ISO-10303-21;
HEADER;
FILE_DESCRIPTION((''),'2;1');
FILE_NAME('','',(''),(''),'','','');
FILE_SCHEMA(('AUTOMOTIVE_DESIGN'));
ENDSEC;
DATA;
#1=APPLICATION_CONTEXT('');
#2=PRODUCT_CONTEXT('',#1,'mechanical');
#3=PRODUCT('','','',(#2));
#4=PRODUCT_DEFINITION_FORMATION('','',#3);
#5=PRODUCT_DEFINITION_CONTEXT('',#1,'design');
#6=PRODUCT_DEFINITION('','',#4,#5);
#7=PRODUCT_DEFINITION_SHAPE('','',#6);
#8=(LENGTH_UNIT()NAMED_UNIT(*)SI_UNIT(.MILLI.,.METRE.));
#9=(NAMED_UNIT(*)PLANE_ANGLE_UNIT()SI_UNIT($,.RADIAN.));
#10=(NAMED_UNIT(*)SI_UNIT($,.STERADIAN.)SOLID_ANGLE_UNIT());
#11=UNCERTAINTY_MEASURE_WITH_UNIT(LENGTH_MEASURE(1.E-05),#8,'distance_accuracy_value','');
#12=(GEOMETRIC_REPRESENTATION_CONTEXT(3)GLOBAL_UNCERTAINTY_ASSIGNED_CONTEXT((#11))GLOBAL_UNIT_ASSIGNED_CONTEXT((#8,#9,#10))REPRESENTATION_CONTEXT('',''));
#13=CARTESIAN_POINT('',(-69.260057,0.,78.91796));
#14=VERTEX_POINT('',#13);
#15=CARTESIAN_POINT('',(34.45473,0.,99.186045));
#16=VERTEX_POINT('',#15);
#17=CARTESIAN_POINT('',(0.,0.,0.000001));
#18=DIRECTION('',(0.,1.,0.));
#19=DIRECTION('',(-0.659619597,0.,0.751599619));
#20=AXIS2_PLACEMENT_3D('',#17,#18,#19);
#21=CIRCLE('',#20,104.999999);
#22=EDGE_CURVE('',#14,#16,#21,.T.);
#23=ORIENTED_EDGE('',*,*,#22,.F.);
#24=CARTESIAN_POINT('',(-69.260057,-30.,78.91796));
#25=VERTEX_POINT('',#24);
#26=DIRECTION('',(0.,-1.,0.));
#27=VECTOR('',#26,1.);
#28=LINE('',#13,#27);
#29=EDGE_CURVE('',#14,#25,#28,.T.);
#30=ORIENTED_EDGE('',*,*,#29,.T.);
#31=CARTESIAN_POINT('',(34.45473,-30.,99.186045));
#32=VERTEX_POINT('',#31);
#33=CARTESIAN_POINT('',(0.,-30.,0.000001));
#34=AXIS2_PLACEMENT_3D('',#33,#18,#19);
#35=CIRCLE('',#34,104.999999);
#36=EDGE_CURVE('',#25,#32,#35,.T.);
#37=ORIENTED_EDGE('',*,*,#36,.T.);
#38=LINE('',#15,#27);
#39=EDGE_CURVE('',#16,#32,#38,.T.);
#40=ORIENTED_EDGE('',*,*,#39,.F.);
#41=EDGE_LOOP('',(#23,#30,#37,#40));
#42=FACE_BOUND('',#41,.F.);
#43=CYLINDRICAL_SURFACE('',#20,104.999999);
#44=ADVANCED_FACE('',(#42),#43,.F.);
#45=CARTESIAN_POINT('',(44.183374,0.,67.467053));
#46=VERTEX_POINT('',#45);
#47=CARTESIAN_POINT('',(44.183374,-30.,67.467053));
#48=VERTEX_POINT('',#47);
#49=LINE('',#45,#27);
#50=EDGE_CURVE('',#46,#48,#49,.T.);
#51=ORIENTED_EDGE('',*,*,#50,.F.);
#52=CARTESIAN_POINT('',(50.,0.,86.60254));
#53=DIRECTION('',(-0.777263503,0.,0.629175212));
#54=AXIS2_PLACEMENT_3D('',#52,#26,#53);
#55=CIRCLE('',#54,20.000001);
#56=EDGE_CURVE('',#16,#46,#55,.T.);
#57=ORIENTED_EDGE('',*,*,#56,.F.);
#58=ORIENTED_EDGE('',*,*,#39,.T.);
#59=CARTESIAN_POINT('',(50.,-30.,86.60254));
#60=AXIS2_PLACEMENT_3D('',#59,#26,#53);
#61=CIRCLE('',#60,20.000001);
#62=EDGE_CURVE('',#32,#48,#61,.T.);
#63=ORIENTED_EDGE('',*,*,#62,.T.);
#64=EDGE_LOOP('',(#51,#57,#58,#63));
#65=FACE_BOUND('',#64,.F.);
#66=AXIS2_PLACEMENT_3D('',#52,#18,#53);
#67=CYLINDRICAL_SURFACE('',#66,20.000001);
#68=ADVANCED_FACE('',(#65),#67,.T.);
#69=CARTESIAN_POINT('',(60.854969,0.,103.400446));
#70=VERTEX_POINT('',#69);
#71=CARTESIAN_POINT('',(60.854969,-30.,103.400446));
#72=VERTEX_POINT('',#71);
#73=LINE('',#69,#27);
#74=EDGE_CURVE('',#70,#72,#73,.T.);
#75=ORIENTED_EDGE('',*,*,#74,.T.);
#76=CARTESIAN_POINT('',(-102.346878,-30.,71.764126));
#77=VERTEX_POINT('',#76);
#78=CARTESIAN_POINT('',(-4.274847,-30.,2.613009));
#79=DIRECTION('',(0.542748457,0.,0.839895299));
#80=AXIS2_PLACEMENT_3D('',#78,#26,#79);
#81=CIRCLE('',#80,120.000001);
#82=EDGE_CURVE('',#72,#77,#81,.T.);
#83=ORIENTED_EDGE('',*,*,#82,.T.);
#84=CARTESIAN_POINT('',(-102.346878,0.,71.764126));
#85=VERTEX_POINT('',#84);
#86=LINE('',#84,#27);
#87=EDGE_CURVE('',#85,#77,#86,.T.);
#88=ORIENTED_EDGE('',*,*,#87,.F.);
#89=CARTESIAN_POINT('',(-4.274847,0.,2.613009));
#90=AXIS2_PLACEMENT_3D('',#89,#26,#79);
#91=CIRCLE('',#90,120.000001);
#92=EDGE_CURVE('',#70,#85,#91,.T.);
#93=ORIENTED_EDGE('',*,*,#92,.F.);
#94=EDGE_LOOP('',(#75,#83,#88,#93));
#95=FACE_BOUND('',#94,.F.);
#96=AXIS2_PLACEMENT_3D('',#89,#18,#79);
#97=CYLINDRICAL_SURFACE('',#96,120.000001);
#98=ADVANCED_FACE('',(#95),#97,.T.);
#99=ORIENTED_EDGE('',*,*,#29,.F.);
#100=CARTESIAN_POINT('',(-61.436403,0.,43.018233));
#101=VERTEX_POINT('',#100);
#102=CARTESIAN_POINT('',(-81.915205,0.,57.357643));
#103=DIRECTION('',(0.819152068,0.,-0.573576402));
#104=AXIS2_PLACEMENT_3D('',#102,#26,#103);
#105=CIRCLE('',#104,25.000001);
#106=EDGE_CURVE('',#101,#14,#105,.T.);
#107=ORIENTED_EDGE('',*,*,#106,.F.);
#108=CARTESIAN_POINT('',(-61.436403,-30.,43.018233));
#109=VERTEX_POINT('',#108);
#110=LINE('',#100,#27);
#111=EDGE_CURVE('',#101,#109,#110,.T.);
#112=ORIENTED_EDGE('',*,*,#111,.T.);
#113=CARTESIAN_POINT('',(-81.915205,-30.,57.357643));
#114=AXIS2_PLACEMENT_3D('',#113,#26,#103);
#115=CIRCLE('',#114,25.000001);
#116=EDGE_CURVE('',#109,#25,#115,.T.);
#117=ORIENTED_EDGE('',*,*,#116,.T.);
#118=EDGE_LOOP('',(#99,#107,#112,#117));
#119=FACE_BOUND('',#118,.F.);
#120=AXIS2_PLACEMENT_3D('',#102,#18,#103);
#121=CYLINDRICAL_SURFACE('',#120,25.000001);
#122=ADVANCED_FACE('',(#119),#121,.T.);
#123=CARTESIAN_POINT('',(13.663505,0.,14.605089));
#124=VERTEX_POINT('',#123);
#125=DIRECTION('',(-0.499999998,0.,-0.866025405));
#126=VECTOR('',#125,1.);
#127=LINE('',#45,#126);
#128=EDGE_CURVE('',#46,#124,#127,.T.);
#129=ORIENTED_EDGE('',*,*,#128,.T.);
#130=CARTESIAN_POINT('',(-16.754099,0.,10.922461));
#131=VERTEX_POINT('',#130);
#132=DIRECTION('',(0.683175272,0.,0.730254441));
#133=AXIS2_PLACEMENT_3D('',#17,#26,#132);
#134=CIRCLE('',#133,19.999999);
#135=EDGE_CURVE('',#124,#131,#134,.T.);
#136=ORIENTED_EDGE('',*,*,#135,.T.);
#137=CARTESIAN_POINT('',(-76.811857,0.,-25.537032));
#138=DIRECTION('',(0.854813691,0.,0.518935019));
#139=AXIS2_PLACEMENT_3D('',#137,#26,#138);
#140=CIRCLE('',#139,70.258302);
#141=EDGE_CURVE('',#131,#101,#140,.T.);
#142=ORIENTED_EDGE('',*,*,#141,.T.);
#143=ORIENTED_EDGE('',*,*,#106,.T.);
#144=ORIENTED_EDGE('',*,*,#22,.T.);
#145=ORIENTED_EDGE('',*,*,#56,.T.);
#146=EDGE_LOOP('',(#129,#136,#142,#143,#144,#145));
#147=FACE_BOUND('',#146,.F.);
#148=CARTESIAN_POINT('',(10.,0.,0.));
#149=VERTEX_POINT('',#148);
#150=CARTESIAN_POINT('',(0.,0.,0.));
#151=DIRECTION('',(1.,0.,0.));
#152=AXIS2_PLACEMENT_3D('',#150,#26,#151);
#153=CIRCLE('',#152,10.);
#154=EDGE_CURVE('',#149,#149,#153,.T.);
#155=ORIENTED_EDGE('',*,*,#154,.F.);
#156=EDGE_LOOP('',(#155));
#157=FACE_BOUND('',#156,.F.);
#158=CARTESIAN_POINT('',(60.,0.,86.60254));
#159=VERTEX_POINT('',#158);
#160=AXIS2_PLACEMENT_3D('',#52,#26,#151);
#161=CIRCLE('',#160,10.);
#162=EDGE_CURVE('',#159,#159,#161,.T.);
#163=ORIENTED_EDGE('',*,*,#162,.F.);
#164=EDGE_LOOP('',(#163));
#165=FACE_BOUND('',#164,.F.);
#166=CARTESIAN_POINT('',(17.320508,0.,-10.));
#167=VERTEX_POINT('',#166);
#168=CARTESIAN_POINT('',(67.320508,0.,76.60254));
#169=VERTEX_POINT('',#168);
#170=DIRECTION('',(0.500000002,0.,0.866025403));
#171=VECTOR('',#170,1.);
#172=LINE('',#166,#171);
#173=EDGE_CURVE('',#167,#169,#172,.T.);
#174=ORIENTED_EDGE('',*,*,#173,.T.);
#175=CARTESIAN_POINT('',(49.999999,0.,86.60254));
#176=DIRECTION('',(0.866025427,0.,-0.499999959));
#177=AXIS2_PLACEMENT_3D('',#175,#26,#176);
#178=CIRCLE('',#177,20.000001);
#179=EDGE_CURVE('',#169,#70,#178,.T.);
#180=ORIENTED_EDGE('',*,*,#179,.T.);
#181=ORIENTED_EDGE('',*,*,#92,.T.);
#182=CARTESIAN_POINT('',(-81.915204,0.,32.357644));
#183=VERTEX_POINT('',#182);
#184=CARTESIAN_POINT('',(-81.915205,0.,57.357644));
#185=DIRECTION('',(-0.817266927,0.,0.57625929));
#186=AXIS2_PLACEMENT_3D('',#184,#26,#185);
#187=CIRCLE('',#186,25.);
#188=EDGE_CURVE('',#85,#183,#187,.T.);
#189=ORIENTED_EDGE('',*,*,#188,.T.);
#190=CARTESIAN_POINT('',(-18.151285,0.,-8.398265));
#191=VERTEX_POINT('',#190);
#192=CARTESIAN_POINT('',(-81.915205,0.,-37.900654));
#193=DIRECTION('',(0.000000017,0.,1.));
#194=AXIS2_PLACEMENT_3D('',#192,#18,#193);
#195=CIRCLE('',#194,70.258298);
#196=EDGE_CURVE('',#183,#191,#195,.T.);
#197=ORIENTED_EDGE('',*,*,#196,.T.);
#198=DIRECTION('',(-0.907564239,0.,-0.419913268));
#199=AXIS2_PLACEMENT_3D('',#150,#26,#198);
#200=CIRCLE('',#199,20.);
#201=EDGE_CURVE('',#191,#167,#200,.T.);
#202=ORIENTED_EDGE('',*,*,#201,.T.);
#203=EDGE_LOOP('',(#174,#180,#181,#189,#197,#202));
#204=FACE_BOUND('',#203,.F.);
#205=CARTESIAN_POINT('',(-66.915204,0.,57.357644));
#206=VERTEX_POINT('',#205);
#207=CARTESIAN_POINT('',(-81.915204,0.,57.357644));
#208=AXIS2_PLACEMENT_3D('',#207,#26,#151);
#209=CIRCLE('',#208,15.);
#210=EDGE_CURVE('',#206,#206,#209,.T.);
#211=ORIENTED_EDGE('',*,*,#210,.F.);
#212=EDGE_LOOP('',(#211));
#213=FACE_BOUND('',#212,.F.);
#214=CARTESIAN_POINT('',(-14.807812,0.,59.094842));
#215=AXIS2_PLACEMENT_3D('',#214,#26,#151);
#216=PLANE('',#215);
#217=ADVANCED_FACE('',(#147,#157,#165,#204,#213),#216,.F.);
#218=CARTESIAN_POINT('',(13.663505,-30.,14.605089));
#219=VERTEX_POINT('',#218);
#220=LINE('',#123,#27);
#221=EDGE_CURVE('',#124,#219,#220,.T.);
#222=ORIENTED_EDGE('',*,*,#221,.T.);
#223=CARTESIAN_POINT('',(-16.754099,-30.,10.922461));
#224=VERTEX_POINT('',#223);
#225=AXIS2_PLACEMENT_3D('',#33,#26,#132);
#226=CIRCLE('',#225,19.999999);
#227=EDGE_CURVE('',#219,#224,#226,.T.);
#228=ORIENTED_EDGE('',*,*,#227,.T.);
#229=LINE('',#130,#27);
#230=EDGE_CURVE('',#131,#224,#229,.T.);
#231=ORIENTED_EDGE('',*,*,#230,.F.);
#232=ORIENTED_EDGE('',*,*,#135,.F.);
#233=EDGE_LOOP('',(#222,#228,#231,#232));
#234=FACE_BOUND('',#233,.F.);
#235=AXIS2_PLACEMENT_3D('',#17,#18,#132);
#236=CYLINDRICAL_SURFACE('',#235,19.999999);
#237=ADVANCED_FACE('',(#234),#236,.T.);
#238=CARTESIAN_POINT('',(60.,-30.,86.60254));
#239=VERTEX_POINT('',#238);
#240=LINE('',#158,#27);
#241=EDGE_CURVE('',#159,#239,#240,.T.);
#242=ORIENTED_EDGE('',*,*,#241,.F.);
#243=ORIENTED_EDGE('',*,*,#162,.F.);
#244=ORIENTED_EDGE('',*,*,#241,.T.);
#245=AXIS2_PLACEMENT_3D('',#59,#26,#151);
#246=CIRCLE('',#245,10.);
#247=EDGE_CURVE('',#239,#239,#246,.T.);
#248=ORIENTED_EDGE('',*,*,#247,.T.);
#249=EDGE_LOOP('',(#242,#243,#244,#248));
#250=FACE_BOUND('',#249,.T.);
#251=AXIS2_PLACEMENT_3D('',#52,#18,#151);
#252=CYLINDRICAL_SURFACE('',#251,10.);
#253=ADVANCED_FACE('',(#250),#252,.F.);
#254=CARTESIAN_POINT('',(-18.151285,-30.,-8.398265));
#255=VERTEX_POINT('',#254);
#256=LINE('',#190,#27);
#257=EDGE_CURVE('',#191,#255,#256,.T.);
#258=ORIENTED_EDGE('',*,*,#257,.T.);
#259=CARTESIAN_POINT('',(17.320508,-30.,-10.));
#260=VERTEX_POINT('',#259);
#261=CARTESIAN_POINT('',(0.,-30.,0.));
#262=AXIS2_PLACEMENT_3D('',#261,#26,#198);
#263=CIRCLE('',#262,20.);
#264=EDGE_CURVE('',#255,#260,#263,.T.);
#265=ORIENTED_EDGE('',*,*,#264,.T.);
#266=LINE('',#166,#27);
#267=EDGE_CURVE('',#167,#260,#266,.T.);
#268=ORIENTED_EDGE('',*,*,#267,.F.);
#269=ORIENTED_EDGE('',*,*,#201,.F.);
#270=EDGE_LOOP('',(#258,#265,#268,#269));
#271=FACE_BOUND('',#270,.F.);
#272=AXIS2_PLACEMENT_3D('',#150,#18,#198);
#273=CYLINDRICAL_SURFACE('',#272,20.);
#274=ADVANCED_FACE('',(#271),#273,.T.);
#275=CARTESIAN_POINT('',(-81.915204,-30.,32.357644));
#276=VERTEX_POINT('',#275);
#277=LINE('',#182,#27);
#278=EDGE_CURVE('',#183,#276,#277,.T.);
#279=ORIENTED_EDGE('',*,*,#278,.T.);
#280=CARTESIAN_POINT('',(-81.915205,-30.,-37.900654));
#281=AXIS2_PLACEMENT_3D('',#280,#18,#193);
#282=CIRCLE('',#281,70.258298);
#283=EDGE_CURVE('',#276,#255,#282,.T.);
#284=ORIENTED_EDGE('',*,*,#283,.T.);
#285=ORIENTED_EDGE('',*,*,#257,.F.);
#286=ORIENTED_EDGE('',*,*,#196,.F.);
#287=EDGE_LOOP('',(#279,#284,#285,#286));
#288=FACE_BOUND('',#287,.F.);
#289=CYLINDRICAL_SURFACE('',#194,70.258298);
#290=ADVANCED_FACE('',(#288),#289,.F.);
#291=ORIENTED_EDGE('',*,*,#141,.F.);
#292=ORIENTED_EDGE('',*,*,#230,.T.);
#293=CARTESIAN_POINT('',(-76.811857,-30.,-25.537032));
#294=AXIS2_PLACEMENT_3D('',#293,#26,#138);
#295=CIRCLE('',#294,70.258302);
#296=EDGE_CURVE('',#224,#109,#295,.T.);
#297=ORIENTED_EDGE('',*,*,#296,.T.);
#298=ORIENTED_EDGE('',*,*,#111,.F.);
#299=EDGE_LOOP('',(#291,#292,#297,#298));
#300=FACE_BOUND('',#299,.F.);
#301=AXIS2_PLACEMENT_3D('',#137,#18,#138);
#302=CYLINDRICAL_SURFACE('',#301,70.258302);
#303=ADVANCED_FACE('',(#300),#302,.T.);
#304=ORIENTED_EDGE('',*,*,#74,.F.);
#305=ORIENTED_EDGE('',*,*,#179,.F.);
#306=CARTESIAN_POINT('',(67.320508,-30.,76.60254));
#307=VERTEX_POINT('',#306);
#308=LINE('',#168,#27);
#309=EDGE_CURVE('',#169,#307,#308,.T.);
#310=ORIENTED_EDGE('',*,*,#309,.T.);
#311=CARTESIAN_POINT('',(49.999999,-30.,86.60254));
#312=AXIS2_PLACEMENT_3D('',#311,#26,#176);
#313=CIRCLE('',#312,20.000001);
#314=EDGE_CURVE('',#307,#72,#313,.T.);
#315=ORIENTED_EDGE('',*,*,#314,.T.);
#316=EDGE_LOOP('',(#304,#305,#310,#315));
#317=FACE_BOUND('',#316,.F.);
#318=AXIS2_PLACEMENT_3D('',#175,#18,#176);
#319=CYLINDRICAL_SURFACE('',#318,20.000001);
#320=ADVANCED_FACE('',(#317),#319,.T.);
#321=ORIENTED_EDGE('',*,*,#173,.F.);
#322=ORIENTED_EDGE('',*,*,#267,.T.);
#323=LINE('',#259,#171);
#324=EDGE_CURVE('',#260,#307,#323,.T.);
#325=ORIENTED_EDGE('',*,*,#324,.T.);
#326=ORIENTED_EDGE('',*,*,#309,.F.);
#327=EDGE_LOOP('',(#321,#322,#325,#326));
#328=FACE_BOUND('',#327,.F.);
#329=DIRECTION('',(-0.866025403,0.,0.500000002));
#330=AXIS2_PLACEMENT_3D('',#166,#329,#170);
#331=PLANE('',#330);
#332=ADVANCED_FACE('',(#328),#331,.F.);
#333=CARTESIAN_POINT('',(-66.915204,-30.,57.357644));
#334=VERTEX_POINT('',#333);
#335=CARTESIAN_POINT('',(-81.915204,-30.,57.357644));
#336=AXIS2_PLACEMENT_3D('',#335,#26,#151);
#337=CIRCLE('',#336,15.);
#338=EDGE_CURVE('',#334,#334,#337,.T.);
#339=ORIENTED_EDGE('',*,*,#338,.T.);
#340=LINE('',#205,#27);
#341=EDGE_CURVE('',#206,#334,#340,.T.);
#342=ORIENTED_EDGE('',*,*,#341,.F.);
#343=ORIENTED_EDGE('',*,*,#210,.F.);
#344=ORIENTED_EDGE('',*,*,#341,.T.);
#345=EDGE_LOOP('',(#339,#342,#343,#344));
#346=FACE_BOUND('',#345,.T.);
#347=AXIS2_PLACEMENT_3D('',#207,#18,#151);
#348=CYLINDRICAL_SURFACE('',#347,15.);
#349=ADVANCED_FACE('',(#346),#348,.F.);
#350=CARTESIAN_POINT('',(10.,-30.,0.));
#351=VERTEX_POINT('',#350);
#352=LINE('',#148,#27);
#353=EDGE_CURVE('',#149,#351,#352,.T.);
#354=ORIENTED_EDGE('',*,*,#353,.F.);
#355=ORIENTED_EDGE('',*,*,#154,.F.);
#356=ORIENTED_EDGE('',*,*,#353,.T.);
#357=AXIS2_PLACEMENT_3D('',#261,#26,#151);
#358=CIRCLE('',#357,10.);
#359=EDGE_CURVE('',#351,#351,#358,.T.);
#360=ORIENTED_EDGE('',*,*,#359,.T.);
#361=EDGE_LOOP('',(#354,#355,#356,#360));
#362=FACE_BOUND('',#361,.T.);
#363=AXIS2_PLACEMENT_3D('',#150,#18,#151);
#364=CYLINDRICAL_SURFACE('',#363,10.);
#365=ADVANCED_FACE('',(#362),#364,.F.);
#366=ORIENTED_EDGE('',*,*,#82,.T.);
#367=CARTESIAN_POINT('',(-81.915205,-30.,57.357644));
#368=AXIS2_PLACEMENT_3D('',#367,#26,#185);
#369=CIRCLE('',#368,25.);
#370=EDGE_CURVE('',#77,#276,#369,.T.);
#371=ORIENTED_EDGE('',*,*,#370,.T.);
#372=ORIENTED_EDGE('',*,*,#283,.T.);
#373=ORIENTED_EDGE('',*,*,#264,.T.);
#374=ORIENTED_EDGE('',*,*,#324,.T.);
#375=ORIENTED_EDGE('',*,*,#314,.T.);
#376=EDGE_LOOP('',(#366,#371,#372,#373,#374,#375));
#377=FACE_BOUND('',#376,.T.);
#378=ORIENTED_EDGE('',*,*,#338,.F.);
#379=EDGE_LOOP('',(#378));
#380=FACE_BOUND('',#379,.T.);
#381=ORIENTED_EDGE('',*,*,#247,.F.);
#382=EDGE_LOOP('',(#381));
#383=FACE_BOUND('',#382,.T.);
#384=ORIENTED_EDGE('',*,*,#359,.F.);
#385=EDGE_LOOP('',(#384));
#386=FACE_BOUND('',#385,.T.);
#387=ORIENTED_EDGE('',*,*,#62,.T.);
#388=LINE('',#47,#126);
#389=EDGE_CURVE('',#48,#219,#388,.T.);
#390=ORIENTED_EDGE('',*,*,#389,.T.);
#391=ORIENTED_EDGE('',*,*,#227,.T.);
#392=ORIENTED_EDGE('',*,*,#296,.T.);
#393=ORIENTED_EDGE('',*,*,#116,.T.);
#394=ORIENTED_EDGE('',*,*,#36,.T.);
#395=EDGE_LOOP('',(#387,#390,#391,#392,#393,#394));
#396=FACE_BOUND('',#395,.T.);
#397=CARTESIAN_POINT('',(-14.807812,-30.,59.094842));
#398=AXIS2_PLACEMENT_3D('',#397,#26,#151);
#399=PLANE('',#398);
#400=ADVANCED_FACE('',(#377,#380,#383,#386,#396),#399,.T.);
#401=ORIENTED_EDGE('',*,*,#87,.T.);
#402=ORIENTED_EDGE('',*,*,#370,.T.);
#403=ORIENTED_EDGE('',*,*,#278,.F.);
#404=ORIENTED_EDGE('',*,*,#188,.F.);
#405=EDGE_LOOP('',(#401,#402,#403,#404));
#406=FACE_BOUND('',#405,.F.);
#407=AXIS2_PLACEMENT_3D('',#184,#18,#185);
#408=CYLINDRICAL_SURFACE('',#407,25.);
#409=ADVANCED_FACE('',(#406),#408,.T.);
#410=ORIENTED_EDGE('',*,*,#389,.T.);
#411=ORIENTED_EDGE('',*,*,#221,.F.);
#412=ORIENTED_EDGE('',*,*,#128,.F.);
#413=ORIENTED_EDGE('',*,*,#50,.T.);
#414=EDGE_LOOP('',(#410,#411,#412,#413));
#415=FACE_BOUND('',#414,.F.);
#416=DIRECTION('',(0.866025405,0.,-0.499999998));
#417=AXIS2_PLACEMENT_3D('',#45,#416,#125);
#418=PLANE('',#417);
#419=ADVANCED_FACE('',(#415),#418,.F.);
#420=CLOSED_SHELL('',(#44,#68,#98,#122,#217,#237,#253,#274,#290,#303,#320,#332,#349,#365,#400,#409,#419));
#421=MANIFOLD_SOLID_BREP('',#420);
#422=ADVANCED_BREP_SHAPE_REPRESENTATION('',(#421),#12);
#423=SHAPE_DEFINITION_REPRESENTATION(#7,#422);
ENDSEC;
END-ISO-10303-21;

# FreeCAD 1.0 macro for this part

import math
import FreeCAD as App
import Part
import Sketcher
from FreeCAD import Vector
Q = App.Units.Quantity

doc = App.newDocument("Part")
params = doc.addObject("Spreadsheet::Sheet", "Params")
for row, (alias, value) in enumerate([
    ("sketch1_diameter", "20 mm"),
    ("sketch1_diameter2", "30 mm"),
    ("sketch1_radius", "20 mm"),
    ("sketch1_radius2", "120.000001 mm"),
    ("sketch1_radius3", "25 mm"),
    ("pad1_length", "30 mm"),
], start=1):
    params.set(f"A{row}", alias)
    params.set(f"B{row}", "=" + value)
    params.setAlias(f"B{row}", alias)

body = doc.addObject("PartDesign::Body", "Body")

sketch1 = doc.addObject("Sketcher::SketchObject", "Sketch")
body.addObject(sketch1)
sketch1.AttachmentSupport = (doc.XZ_Plane, [""])
sketch1.MapMode = "FlatFace"
sketch1.addGeometry([
    Part.ArcOfCircle(Part.Circle(Vector(-81.915205, -37.900654, 0), Vector(0, 0, 1), 70.258298), math.radians(24.82911), math.radians(89.999999)),
    Part.ArcOfCircle(Part.Circle(Vector(0, 0, 0), Vector(0, 0, 1), 20), math.radians(-155.170888), math.radians(-30.000001)),
    Part.LineSegment(Vector(17.320508, -10, 0), Vector(67.320508, 76.60254, 0)),
    Part.ArcOfCircle(Part.Circle(Vector(49.999999, 86.60254, 0), Vector(0, 0, 1), 20.000001), math.radians(-29.999997), math.radians(57.129063)),
    Part.ArcOfCircle(Part.Circle(Vector(-4.274847, 2.613009, 0), Vector(0, 0, 1), 120.000001), math.radians(57.129065), math.radians(144.81213)),
    Part.ArcOfCircle(Part.Circle(Vector(-81.915205, 57.357644, 0), Vector(0, 0, 1), 25), math.radians(144.812131), math.radians(270.000002)),
    Part.Circle(Vector(0, 0, 0), Vector(0, 0, 1), 10),
    Part.Circle(Vector(-81.915204, 57.357644, 0), Vector(0, 0, 1), 15),
    Part.ArcOfCircle(Part.Circle(Vector(-81.915205, 57.357643, 0), Vector(0, 0, 1), 25.000001), math.radians(-34.999998), math.radians(59.588564)),
    Part.ArcOfCircle(Part.Circle(Vector(0, 0.000001, 0), Vector(0, 0, 1), 104.999999), math.radians(70.844063), math.radians(131.270868)),
    Part.ArcOfCircle(Part.Circle(Vector(50, 86.60254, 0), Vector(0, 0, 1), 20.000001), math.radians(141.010703), math.radians(253.092268)),
    Part.LineSegment(Vector(44.183374, 67.467053, 0), Vector(13.663505, 14.605089, 0)),
    Part.ArcOfCircle(Part.Circle(Vector(0, 0.000001, 0), Vector(0, 0, 1), 19.999999), math.radians(46.907729), math.radians(146.898559)),
    Part.ArcOfCircle(Part.Circle(Vector(-76.811857, -25.537032, 0), Vector(0, 0, 1), 70.258302), math.radians(31.260842), math.radians(77.358984)),
    Part.Circle(Vector(50, 86.60254, 0), Vector(0, 0, 1), 10),
], False)
sketch1.addConstraint([
    Sketcher.Constraint("Tangent", 0, 1, 1, 1),
    Sketcher.Constraint("Tangent", 1, 2, 2, 1),
    Sketcher.Constraint("Tangent", 2, 2, 3, 1),
    Sketcher.Constraint("Tangent", 3, 2, 4, 1),
    Sketcher.Constraint("Tangent", 4, 2, 5, 1),
    Sketcher.Constraint("Tangent", 5, 2, 0, 2),
    Sketcher.Constraint("Coincident", 8, 2, 9, 2),
    Sketcher.Constraint("Coincident", 9, 1, 10, 1),
    Sketcher.Constraint("Coincident", 10, 2, 11, 1),
    Sketcher.Constraint("Coincident", 11, 2, 12, 1),
    Sketcher.Constraint("Coincident", 12, 2, 13, 1),
    Sketcher.Constraint("Coincident", 13, 2, 8, 1),
    Sketcher.Constraint("Coincident", 1, 3, -1, 1),
    Sketcher.Constraint("Coincident", 6, 3, -1, 1),
    Sketcher.Constraint("Coincident", 9, 3, -1, 1),
    Sketcher.Constraint("Coincident", 12, 3, -1, 1),
    Sketcher.Constraint("Coincident", 7, 3, 5, 3),
    Sketcher.Constraint("Coincident", 8, 3, 5, 3),
    Sketcher.Constraint("Coincident", 10, 3, 3, 3),
    Sketcher.Constraint("Coincident", 14, 3, 3, 3),
    Sketcher.Constraint("Equal", 1, 3),
    Sketcher.Constraint("Equal", 5, 8),
    Sketcher.Constraint("Equal", 3, 10),
    Sketcher.Constraint("Equal", 10, 12),
    Sketcher.Constraint("Equal", 6, 14),
    Sketcher.Constraint("Parallel", 2, 11),
    Sketcher.Constraint("Vertical", 0, 3, 5, 3),
    Sketcher.Constraint("Diameter", 6, Q("20 mm")),
    Sketcher.Constraint("Diameter", 7, Q("30 mm")),
    Sketcher.Constraint("Radius", 1, Q("20 mm")),
    Sketcher.Constraint("Radius", 4, Q("120.000001 mm")),
    Sketcher.Constraint("Radius", 5, Q("25 mm")),
    Sketcher.Constraint("Radius", 9, Q("104.999999 mm")),
    Sketcher.Constraint("Angle", 2, Q("60 deg")),
    Sketcher.Constraint("Distance", 2, Q("100 mm")),
    Sketcher.Constraint("Radius", 0, Q("70.258298 mm")),
    Sketcher.Constraint("Radius", 13, Q("70.258302 mm")),
    Sketcher.Constraint("DistanceX", 12, 2, -1, 1, Q("16.754099 mm")),
    Sketcher.Constraint("DistanceX", 5, 2, 13, 2, Q("20.478801 mm")),
    Sketcher.Constraint("Distance", 11, Q("61.039738 mm")),
    Sketcher.Constraint("DistanceY", -1, 1, 4, 3, Q("2.613009 mm")),
])
sketch1.setExpression("Constraints[27]", "Params.sketch1_diameter")
sketch1.setExpression("Constraints[28]", "Params.sketch1_diameter2")
sketch1.setExpression("Constraints[29]", "Params.sketch1_radius")
sketch1.setExpression("Constraints[30]", "Params.sketch1_radius2")
sketch1.setExpression("Constraints[31]", "Params.sketch1_radius3")
pad1 = doc.addObject("PartDesign::Pad", "Pad")
body.addObject(pad1)
pad1.Profile = sketch1
pad1.setExpression("Length", "Params.pad1_length")

doc.recompute()
